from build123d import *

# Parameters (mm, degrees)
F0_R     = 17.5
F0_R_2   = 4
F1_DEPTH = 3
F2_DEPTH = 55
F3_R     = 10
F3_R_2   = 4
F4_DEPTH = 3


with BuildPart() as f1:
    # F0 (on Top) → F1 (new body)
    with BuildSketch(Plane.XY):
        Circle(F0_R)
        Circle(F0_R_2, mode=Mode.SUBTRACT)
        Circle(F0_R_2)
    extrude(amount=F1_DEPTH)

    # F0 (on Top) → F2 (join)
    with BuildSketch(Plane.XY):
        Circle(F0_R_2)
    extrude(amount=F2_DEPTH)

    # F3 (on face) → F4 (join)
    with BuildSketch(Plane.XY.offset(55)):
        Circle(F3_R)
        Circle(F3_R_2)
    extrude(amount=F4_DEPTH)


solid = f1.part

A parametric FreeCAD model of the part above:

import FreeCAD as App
import Part
import Sketcher
Q = App.Units.Quantity

doc = App.newDocument("Part")
params = doc.addObject("Spreadsheet::Sheet", "Params")
for row, (alias, value) in enumerate([
    ("sketch1_diameter", "35 mm"),
    ("pad1_length", "3 mm"),
    ("sketch2_diameter", "8 mm"),
    ("pad2_length", "55 mm"),
    ("sketch3_diameter", "20 mm"),
    ("pad3_length", "3 mm"),
], start=1):
    params.set(f"A{row}", alias)
    params.set(f"B{row}", "=" + value)
    params.setAlias(f"B{row}", alias)

body = doc.addObject("PartDesign::Body", "Body")

sketch1 = doc.addObject("Sketcher::SketchObject", "Sketch")
body.addObject(sketch1)
sketch1.AttachmentSupport = (doc.XY_Plane, [""])
sketch1.MapMode = "FlatFace"
sketch1.addGeometry(Part.Circle(App.Vector(0, 0, 0), App.Vector(0, 0, 1), 18), False)
sketch1.addConstraint(Sketcher.Constraint("Coincident", 0, 3, -1, 1))
sketch1.addConstraint(Sketcher.Constraint("Diameter", 0, Q("35 mm")))
sketch1.setExpression("Constraints[1]", "Params.sketch1_diameter")
pad1 = doc.addObject("PartDesign::Pad", "Pad")
body.addObject(pad1)
pad1.Profile = sketch1
pad1.setExpression("Length", "Params.pad1_length")

sketch2 = doc.addObject("Sketcher::SketchObject", "Sketch001")
body.addObject(sketch2)
sketch2.AttachmentSupport = (doc.XY_Plane, [""])
sketch2.MapMode = "FlatFace"
sketch2.addGeometry(Part.Circle(App.Vector(0, 0, 0), App.Vector(0, 0, 1), 4), False)
sketch2.addConstraint(Sketcher.Constraint("Coincident", 0, 3, -1, 1))
sketch2.addConstraint(Sketcher.Constraint("Diameter", 0, Q("8 mm")))
sketch2.setExpression("Constraints[1]", "Params.sketch2_diameter")
pad2 = doc.addObject("PartDesign::Pad", "Pad001")
body.addObject(pad2)
pad2.Profile = sketch2
pad2.setExpression("Length", "Params.pad2_length")

sketch3 = doc.addObject("Sketcher::SketchObject", "Sketch002")
body.addObject(sketch3)
sketch3.AttachmentSupport = (doc.XY_Plane, [""])
sketch3.MapMode = "FlatFace"
sketch3.AttachmentOffset = App.Placement(App.Vector(0, 0, 55), App.Rotation())
sketch3.addGeometry(Part.Circle(App.Vector(0, 0, 0), App.Vector(0, 0, 1), 10), False)
sketch3.addConstraint(Sketcher.Constraint("Coincident", 0, 3, -1, 1))
sketch3.addConstraint(Sketcher.Constraint("Diameter", 0, Q("20 mm")))
sketch3.setExpression("Constraints[1]", "Params.sketch3_diameter")
pad3 = doc.addObject("PartDesign::Pad", "Pad002")
body.addObject(pad3)
pad3.Profile = sketch3
pad3.setExpression("Length", "Params.pad3_length")

doc.recompute()
